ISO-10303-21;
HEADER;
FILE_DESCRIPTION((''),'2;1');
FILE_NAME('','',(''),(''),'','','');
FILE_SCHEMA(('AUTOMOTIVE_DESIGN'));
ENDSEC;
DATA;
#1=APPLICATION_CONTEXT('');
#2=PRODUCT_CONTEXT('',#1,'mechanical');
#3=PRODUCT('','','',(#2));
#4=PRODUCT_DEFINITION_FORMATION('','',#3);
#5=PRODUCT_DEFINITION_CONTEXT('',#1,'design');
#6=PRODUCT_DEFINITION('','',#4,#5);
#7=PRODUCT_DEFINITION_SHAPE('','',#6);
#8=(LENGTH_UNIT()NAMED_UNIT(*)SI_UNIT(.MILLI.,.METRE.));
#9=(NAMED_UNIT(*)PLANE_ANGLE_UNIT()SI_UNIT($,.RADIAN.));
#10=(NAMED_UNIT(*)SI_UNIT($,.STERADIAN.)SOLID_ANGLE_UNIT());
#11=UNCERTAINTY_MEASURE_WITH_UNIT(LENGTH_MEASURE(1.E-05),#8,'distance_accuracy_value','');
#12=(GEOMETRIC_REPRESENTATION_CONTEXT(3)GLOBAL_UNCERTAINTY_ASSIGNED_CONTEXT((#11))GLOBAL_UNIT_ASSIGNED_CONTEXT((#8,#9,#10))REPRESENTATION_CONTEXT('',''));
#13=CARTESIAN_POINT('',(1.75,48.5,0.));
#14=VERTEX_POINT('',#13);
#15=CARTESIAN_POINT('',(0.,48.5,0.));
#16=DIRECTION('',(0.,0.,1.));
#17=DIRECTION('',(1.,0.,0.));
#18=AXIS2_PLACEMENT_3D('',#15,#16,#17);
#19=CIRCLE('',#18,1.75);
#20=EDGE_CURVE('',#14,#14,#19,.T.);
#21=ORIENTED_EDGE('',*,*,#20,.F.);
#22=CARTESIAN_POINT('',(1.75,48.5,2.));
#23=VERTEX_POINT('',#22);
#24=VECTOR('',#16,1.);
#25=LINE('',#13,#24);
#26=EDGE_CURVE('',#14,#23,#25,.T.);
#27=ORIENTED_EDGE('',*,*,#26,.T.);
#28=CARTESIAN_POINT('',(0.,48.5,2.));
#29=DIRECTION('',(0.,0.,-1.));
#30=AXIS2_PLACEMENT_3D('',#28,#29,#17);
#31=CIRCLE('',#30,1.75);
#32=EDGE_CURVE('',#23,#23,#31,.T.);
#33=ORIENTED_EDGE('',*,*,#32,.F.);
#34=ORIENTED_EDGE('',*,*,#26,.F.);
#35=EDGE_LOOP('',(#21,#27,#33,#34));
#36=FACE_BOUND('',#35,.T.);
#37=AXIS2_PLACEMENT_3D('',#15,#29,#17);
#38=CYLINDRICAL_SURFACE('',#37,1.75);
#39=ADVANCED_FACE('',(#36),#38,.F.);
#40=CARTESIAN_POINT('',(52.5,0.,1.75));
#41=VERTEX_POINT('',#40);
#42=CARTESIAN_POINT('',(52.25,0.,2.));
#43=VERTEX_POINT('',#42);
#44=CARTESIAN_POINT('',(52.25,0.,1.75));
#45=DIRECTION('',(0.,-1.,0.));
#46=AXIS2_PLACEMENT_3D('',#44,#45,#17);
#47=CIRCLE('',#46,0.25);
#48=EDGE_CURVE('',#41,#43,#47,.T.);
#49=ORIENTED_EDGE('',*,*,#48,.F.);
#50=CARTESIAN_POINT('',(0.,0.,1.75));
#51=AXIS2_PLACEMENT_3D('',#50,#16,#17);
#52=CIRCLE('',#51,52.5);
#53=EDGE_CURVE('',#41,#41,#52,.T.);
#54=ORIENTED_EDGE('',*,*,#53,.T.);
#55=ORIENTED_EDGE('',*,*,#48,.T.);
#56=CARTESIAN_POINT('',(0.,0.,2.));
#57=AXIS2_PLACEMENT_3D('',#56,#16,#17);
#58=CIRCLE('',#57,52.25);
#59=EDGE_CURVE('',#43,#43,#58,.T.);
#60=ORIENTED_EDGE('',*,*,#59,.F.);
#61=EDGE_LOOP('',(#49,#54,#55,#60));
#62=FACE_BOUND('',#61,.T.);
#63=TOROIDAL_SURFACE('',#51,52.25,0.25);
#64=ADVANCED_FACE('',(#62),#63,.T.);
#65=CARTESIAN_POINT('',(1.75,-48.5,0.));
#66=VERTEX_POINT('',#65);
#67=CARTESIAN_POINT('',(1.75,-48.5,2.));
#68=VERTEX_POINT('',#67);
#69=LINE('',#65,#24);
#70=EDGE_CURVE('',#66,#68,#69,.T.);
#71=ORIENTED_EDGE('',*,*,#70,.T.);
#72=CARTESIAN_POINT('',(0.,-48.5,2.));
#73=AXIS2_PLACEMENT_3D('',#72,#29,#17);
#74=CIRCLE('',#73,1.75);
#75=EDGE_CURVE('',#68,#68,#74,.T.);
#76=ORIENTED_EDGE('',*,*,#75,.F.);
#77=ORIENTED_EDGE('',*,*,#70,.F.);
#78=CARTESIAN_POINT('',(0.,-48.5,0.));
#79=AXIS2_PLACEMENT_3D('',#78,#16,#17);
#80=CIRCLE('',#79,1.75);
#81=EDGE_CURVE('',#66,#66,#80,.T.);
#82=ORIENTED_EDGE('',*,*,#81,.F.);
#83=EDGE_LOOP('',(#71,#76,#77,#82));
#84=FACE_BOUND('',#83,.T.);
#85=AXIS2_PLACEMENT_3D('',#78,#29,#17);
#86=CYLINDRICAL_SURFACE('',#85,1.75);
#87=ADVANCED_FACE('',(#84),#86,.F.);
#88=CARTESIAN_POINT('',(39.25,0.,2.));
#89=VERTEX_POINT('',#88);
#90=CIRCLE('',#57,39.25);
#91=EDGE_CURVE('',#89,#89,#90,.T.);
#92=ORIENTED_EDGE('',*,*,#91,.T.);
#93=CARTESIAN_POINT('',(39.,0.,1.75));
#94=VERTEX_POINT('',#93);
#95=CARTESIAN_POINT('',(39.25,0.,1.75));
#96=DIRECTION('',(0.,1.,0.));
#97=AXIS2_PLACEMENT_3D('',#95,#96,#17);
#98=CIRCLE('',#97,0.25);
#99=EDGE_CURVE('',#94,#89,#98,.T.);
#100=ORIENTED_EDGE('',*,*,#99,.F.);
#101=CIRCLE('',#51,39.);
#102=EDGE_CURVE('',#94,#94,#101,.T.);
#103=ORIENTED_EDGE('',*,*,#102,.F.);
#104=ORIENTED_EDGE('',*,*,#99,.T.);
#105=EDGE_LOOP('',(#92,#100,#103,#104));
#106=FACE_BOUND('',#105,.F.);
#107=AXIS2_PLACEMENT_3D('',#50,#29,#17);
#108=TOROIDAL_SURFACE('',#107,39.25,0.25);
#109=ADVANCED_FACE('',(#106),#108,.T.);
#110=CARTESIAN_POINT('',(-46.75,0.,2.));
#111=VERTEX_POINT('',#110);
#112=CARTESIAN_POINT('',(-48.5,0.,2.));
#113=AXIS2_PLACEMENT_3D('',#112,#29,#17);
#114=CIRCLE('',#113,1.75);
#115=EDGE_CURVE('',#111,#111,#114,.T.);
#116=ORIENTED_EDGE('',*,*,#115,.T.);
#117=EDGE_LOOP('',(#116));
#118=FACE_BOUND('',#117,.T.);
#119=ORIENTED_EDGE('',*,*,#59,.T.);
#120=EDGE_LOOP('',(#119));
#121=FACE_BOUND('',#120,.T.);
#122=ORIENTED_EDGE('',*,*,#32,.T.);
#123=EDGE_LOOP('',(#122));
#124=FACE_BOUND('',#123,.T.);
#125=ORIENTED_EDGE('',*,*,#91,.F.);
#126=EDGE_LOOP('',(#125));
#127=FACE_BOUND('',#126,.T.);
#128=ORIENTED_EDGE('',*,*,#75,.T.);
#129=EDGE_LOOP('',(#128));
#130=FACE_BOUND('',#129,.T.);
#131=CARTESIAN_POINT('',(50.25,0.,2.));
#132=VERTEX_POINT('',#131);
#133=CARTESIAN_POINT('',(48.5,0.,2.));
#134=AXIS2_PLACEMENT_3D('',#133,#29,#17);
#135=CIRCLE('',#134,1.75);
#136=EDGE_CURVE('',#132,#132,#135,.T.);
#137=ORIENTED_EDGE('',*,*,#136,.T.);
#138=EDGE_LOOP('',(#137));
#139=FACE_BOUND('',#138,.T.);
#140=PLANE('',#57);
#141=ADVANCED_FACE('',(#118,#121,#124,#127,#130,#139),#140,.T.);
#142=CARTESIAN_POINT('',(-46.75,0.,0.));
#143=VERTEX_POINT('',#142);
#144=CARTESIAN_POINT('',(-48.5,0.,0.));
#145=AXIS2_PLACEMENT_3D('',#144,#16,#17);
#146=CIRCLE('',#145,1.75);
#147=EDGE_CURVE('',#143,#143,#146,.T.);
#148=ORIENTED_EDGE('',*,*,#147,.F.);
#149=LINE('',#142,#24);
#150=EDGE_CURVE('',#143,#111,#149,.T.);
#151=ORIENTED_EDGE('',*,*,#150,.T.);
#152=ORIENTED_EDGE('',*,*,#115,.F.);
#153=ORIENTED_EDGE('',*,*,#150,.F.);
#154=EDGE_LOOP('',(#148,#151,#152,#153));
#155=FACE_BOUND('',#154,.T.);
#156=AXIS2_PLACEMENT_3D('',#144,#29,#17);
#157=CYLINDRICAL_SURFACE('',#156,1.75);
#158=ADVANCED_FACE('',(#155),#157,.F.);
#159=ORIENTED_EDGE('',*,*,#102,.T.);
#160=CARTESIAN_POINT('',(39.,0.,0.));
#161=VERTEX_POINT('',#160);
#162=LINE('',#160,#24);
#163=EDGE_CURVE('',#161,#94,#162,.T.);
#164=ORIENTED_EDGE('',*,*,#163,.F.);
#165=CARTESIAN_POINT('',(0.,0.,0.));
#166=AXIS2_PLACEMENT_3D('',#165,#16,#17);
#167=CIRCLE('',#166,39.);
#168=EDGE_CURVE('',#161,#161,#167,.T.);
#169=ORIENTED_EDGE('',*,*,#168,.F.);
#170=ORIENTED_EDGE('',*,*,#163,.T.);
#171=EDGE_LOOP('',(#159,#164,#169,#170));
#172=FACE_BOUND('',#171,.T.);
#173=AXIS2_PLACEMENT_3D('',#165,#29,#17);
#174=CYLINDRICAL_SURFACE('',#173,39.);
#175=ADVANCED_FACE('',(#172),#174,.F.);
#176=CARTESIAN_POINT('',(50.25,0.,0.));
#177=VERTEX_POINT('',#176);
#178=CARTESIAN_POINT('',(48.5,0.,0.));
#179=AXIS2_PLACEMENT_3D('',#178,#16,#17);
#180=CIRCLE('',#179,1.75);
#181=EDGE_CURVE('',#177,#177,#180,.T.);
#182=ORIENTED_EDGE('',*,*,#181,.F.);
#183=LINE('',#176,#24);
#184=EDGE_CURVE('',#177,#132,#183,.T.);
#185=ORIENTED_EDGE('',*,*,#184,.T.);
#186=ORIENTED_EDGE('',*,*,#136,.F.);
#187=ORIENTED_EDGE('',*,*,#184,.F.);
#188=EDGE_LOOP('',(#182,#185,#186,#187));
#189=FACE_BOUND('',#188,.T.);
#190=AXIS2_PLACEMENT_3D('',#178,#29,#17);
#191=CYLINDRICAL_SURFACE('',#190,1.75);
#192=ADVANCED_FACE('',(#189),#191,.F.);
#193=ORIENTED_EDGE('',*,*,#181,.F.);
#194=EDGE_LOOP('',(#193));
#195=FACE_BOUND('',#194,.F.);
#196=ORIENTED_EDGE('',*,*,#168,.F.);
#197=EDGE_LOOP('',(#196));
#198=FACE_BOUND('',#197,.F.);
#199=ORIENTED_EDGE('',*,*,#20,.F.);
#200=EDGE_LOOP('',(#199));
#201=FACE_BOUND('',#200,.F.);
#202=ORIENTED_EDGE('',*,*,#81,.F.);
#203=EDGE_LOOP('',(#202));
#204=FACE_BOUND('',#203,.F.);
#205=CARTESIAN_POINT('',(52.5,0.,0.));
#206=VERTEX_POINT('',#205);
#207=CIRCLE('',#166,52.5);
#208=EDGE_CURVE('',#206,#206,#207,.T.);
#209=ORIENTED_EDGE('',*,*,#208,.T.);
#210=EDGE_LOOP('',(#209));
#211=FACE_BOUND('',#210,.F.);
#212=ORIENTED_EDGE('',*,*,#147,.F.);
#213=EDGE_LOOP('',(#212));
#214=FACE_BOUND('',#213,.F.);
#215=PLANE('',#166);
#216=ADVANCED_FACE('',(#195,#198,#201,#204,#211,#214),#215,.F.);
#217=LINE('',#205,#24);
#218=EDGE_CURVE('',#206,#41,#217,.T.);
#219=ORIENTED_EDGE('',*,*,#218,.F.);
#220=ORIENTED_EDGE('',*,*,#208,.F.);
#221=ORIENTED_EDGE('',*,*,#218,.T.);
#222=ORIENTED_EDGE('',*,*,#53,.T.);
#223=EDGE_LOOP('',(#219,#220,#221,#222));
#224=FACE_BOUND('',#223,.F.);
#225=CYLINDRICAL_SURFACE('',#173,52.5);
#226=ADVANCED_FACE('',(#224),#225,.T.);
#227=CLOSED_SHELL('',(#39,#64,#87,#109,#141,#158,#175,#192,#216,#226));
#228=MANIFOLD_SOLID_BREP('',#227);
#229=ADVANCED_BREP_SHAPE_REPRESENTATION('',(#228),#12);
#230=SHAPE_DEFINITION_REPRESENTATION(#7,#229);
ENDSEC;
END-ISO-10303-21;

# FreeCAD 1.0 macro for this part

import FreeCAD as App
import Part
import Sketcher

V = App.Vector


def edges_at(feature, points):
    """Names of the edges that pass closest to the given points."""
    edges = feature.Shape.Edges
    near = lambda p: min(range(len(edges)), key=lambda i: edges[i].distToShape(Part.Vertex(*p))[0])
    return sorted({f"Edge{near(p) + 1}" for p in points})

doc = App.newDocument("Part")
params = doc.addObject("Spreadsheet::Sheet", "Params")
for row, (alias, value) in enumerate([
    ("sketch1_diameter", "105 mm"),
    ("sketch1_diameter2", "78 mm"),
    ("pad1_length", "2 mm"),
    ("fillet_radius", "0.25 mm"),
    ("sketch2_diameter", "3.5 mm"),
], start=1):
    params.set(f"A{row}", alias)
    params.set(f"B{row}", "=" + value)
    params.setAlias(f"B{row}", alias)

body = doc.addObject("PartDesign::Body", "Body")

sketch1 = body.newObject("Sketcher::SketchObject", "Sketch")
sketch1.AttachmentSupport = (doc.getObject("XY_Plane"), [""])
sketch1.MapMode = "FlatFace"
sketch1.addGeometry(Part.Circle(V(0, 0, 0), V(0, 0, 1), 52.5), False)
sketch1.addGeometry(Part.Circle(V(0, 0, 0), V(0, 0, 1), 39), False)
sketch1.addConstraint(Sketcher.Constraint("Coincident", 0, 3, -1, 1))
sketch1.addConstraint(Sketcher.Constraint("Coincident", 1, 3, -1, 1))
sketch1.addConstraint(Sketcher.Constraint("Diameter", 0, 105.0))
sketch1.addConstraint(Sketcher.Constraint("Diameter", 1, 78.0))
sketch1.setExpression("Constraints[2]", "Params.sketch1_diameter")
sketch1.setExpression("Constraints[3]", "Params.sketch1_diameter2")
pad1 = body.newObject("PartDesign::Pad", "Pad")
pad1.Profile = sketch1
pad1.setExpression("Length", "Params.pad1_length")
doc.recompute()

fillet = body.newObject("PartDesign::Fillet", "Fillet")
fillet.Base = (pad1, edges_at(pad1, [(-52.5, 0, 2), (-39, 0, 2)]))
fillet.setExpression("Radius", "Params.fillet_radius")

sketch2 = body.newObject("Sketcher::SketchObject", "Sketch001")
sketch2.AttachmentSupport = (doc.getObject("XY_Plane"), [""])
sketch2.MapMode = "FlatFace"
sketch2.addGeometry(Part.Circle(V(48.5, 0, 0), V(0, 0, 1), 1.75), False)
sketch2.addGeometry(Part.Circle(V(0, 48.5, 0), V(0, 0, 1), 1.75), False)
sketch2.addGeometry(Part.Circle(V(-48.5, 0, 0), V(0, 0, 1), 1.75), False)
sketch2.addGeometry(Part.Circle(V(0, -48.5, 0), V(0, 0, 1), 1.75), False)
sketch2.addConstraint(Sketcher.Constraint("Equal", 0, 1))
sketch2.addConstraint(Sketcher.Constraint("Equal", 1, 2))
sketch2.addConstraint(Sketcher.Constraint("Equal", 2, 3))
sketch2.addConstraint(Sketcher.Constraint("Symmetric", 0, 3, 2, 3, -1, 1))
sketch2.addConstraint(Sketcher.Constraint("Symmetric", 1, 3, 3, 3, -1, 1))
sketch2.addConstraint(Sketcher.Constraint("PointOnObject", 0, 3, -1))
sketch2.addConstraint(Sketcher.Constraint("PointOnObject", 1, 3, -2))
sketch2.addConstraint(Sketcher.Constraint("Diameter", 0, 3.5))
sketch2.addConstraint(Sketcher.Constraint("DistanceX", 2, 3, 0, 3, 97.0))
sketch2.addConstraint(Sketcher.Constraint("DistanceY", 3, 3, 1, 3, 97.0))
sketch2.setExpression("Constraints[7]", "Params.sketch2_diameter")
pocket1 = body.newObject("PartDesign::Pocket", "Pocket")
pocket1.Profile = sketch2
pocket1.Type = "ThroughAll"
pocket1.Reversed = True

doc.recompute()
